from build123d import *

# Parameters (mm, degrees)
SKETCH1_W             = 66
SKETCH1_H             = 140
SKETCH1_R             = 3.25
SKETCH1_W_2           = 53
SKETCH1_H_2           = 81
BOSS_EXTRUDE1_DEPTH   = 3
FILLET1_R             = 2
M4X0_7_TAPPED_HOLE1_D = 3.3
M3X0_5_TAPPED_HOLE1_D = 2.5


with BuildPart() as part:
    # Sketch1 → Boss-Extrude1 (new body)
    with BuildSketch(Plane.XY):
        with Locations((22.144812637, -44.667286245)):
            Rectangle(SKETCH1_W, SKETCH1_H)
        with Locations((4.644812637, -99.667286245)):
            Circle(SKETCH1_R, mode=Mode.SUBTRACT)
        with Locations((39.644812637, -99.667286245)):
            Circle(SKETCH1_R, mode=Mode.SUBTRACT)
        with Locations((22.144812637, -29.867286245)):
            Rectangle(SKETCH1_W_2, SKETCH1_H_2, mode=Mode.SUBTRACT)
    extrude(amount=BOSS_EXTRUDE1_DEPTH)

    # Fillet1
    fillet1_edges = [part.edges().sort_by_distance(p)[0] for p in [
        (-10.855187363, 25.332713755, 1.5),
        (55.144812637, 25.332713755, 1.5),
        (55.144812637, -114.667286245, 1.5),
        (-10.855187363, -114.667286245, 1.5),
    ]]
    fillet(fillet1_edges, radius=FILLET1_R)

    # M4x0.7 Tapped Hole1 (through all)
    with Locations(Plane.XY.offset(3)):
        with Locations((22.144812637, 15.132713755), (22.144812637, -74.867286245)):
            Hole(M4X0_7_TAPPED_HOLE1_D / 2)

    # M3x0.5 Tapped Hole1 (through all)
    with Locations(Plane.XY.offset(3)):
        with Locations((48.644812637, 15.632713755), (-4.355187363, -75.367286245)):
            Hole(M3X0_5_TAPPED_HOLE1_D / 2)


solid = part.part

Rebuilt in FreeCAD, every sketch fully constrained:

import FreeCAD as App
import Part
import Sketcher

V = App.Vector


def edges_at(feature, points):
    """Names of the edges that pass closest to the given points."""
    edges = feature.Shape.Edges
    near = lambda p: min(range(len(edges)), key=lambda i: edges[i].distToShape(Part.Vertex(*p))[0])
    return sorted({f"Edge{near(p) + 1}" for p in points})


def add_polygon(sketch, points):
    """Adds a closed chain of lines whose ends are joined by coincident constraints."""
    first, n = sketch.GeometryCount, len(points)
    for a, b in zip(points, points[1:] + points[:1]):
        sketch.addGeometry(Part.LineSegment(App.Vector(*a, 0), App.Vector(*b, 0)), False)
    for i in range(n):
        sketch.addConstraint(Sketcher.Constraint("Coincident", first + i, 2, first + (i + 1) % n, 1))

doc = App.newDocument("Part")
params = doc.addObject("Spreadsheet::Sheet", "Params")
for row, (alias, value) in enumerate([
    ("sketch1_diameter", "6.5 mm"),
    ("sketch1_width", "66 mm"),
    ("sketch1_width2", "53 mm"),
    ("sketch1_height", "140 mm"),
    ("sketch1_height2", "81 mm"),
    ("pad1_length", "3 mm"),
    ("fillet_radius", "2 mm"),
    ("sketch2_diameter", "3.3 mm"),
    ("hole_diameter", "3.3 mm"),
    ("sketch3_diameter", "2.5 mm"),
    ("hole2_diameter", "2.5 mm"),
], start=1):
    params.set(f"A{row}", alias)
    params.set(f"B{row}", "=" + value)
    params.setAlias(f"B{row}", alias)

body = doc.addObject("PartDesign::Body", "Body")

sketch1 = body.newObject("Sketcher::SketchObject", "Sketch")
sketch1.AttachmentSupport = (doc.getObject("XY_Plane"), [""])
sketch1.MapMode = "FlatFace"
add_polygon(sketch1, [(-10.855187, 25.332714), (-10.855187, -114.667286), (55.144813, -114.667286), (55.144813, 25.332714)])
sketch1.addGeometry(Part.Circle(V(4.644813, -99.667286, 0), V(0, 0, 1), 3.25), False)
sketch1.addGeometry(Part.Circle(V(39.644813, -99.667286, 0), V(0, 0, 1), 3.25), False)
add_polygon(sketch1, [(48.644813, -70.367286), (-4.355187, -70.367286), (-4.355187, 10.632714), (48.644813, 10.632714)])
sketch1.addConstraint(Sketcher.Constraint("Vertical", 0))
sketch1.addConstraint(Sketcher.Constraint("Horizontal", 1))
sketch1.addConstraint(Sketcher.Constraint("Vertical", 2))
sketch1.addConstraint(Sketcher.Constraint("Horizontal", 3))
sketch1.addConstraint(Sketcher.Constraint("Horizontal", 6))
sketch1.addConstraint(Sketcher.Constraint("Vertical", 7))
sketch1.addConstraint(Sketcher.Constraint("Horizontal", 8))
sketch1.addConstraint(Sketcher.Constraint("Vertical", 9))
sketch1.addConstraint(Sketcher.Constraint("Equal", 4, 5))
sketch1.addConstraint(Sketcher.Constraint("Horizontal", 4, 3, 5, 3))
sketch1.addConstraint(Sketcher.Constraint("Diameter", 4, 6.5))
sketch1.addConstraint(Sketcher.Constraint("DistanceX", 1, 1, 1, 2, 66.0))
sketch1.addConstraint(Sketcher.Constraint("DistanceX", 6, 2, 6, 1, 53.0))
sketch1.addConstraint(Sketcher.Constraint("DistanceY", 0, 2, 0, 1, 140.0))
sketch1.addConstraint(Sketcher.Constraint("DistanceY", 7, 1, 7, 2, 81.0))
sketch1.addConstraint(Sketcher.Constraint("DistanceX", 4, 3, 5, 3, 35.0))
sketch1.addConstraint(Sketcher.Constraint("DistanceY", 0, 2, 4, 3, 15.0))
sketch1.addConstraint(Sketcher.Constraint("DistanceX", 6, 2, 4, 3, 9.0))
sketch1.addConstraint(Sketcher.Constraint("DistanceX", 0, 2, 4, 3, 15.5))
sketch1.addConstraint(Sketcher.Constraint("DistanceY", 4, 3, 6, 2, 29.3))
sketch1.addConstraint(Sketcher.Constraint("DistanceX", -1, 1, 4, 3, 4.644813))
sketch1.addConstraint(Sketcher.Constraint("DistanceY", 4, 3, -1, 1, 99.667286))
sketch1.setExpression("Constraints[18]", "Params.sketch1_diameter")
sketch1.setExpression("Constraints[19]", "Params.sketch1_width")
sketch1.setExpression("Constraints[20]", "Params.sketch1_width2")
sketch1.setExpression("Constraints[21]", "Params.sketch1_height")
sketch1.setExpression("Constraints[22]", "Params.sketch1_height2")
pad1 = body.newObject("PartDesign::Pad", "Pad")
pad1.Profile = sketch1
pad1.setExpression("Length", "Params.pad1_length")
doc.recompute()

fillet = body.newObject("PartDesign::Fillet", "Fillet")
fillet.Base = (pad1, edges_at(pad1, [
    (-10.855, 25.333, 1.5),
    (55.145, 25.333, 1.5),
    (55.145, -114.667, 1.5),
    (-10.855, -114.667, 1.5),
]))
fillet.setExpression("Radius", "Params.fillet_radius")

sketch2 = body.newObject("Sketcher::SketchObject", "Sketch001")
sketch2.AttachmentSupport = (doc.getObject("XY_Plane"), [""])
sketch2.MapMode = "FlatFace"
sketch2.AttachmentOffset = App.Placement(V(0, 0, 3), App.Rotation())
sketch2.addGeometry(Part.Circle(V(22.144813, 15.132714, 0), V(0, 0, 1), 1.65), False)
sketch2.addGeometry(Part.Circle(V(22.144813, -74.867286, 0), V(0, 0, 1), 1.65), False)
sketch2.addConstraint(Sketcher.Constraint("Equal", 0, 1))
sketch2.addConstraint(Sketcher.Constraint("Vertical", 0, 3, 1, 3))
sketch2.addConstraint(Sketcher.Constraint("Diameter", 0, 3.3))
sketch2.addConstraint(Sketcher.Constraint("DistanceY", 1, 3, 0, 3, 90.0))
sketch2.addConstraint(Sketcher.Constraint("DistanceX", -1, 1, 0, 3, 22.144813))
sketch2.addConstraint(Sketcher.Constraint("DistanceY", -1, 1, 0, 3, 15.132714))
sketch2.setExpression("Constraints[2]", "Params.sketch2_diameter")
doc.recompute()
hole = body.newObject("PartDesign::Hole", "Hole")
hole.Profile = sketch2
hole.ThreadType = "None"
hole.setExpression("Diameter", "Params.hole_diameter")
hole.DepthType = "ThroughAll"

sketch3 = body.newObject("Sketcher::SketchObject", "Sketch002")
sketch3.AttachmentSupport = (doc.getObject("XY_Plane"), [""])
sketch3.MapMode = "FlatFace"
sketch3.AttachmentOffset = App.Placement(V(0, 0, 3), App.Rotation())
sketch3.addGeometry(Part.Circle(V(48.644813, 15.632714, 0), V(0, 0, 1), 1.25), False)
sketch3.addGeometry(Part.Circle(V(-4.355187, -75.367286, 0), V(0, 0, 1), 1.25), False)
sketch3.addConstraint(Sketcher.Constraint("Equal", 0, 1))
sketch3.addConstraint(Sketcher.Constraint("Diameter", 0, 2.5))
sketch3.addConstraint(Sketcher.Constraint("DistanceX", 1, 3, 0, 3, 53.0))
sketch3.addConstraint(Sketcher.Constraint("DistanceY", 1, 3, 0, 3, 91.0))
sketch3.addConstraint(Sketcher.Constraint("DistanceX", -1, 1, 0, 3, 48.644813))
sketch3.addConstraint(Sketcher.Constraint("DistanceY", -1, 1, 0, 3, 15.632714))
sketch3.setExpression("Constraints[1]", "Params.sketch3_diameter")
doc.recompute()
hole2 = body.newObject("PartDesign::Hole", "Hole001")
hole2.Profile = sketch3
hole2.ThreadType = "None"
hole2.setExpression("Diameter", "Params.hole2_diameter")
hole2.DepthType = "ThroughAll"

doc.recompute()
